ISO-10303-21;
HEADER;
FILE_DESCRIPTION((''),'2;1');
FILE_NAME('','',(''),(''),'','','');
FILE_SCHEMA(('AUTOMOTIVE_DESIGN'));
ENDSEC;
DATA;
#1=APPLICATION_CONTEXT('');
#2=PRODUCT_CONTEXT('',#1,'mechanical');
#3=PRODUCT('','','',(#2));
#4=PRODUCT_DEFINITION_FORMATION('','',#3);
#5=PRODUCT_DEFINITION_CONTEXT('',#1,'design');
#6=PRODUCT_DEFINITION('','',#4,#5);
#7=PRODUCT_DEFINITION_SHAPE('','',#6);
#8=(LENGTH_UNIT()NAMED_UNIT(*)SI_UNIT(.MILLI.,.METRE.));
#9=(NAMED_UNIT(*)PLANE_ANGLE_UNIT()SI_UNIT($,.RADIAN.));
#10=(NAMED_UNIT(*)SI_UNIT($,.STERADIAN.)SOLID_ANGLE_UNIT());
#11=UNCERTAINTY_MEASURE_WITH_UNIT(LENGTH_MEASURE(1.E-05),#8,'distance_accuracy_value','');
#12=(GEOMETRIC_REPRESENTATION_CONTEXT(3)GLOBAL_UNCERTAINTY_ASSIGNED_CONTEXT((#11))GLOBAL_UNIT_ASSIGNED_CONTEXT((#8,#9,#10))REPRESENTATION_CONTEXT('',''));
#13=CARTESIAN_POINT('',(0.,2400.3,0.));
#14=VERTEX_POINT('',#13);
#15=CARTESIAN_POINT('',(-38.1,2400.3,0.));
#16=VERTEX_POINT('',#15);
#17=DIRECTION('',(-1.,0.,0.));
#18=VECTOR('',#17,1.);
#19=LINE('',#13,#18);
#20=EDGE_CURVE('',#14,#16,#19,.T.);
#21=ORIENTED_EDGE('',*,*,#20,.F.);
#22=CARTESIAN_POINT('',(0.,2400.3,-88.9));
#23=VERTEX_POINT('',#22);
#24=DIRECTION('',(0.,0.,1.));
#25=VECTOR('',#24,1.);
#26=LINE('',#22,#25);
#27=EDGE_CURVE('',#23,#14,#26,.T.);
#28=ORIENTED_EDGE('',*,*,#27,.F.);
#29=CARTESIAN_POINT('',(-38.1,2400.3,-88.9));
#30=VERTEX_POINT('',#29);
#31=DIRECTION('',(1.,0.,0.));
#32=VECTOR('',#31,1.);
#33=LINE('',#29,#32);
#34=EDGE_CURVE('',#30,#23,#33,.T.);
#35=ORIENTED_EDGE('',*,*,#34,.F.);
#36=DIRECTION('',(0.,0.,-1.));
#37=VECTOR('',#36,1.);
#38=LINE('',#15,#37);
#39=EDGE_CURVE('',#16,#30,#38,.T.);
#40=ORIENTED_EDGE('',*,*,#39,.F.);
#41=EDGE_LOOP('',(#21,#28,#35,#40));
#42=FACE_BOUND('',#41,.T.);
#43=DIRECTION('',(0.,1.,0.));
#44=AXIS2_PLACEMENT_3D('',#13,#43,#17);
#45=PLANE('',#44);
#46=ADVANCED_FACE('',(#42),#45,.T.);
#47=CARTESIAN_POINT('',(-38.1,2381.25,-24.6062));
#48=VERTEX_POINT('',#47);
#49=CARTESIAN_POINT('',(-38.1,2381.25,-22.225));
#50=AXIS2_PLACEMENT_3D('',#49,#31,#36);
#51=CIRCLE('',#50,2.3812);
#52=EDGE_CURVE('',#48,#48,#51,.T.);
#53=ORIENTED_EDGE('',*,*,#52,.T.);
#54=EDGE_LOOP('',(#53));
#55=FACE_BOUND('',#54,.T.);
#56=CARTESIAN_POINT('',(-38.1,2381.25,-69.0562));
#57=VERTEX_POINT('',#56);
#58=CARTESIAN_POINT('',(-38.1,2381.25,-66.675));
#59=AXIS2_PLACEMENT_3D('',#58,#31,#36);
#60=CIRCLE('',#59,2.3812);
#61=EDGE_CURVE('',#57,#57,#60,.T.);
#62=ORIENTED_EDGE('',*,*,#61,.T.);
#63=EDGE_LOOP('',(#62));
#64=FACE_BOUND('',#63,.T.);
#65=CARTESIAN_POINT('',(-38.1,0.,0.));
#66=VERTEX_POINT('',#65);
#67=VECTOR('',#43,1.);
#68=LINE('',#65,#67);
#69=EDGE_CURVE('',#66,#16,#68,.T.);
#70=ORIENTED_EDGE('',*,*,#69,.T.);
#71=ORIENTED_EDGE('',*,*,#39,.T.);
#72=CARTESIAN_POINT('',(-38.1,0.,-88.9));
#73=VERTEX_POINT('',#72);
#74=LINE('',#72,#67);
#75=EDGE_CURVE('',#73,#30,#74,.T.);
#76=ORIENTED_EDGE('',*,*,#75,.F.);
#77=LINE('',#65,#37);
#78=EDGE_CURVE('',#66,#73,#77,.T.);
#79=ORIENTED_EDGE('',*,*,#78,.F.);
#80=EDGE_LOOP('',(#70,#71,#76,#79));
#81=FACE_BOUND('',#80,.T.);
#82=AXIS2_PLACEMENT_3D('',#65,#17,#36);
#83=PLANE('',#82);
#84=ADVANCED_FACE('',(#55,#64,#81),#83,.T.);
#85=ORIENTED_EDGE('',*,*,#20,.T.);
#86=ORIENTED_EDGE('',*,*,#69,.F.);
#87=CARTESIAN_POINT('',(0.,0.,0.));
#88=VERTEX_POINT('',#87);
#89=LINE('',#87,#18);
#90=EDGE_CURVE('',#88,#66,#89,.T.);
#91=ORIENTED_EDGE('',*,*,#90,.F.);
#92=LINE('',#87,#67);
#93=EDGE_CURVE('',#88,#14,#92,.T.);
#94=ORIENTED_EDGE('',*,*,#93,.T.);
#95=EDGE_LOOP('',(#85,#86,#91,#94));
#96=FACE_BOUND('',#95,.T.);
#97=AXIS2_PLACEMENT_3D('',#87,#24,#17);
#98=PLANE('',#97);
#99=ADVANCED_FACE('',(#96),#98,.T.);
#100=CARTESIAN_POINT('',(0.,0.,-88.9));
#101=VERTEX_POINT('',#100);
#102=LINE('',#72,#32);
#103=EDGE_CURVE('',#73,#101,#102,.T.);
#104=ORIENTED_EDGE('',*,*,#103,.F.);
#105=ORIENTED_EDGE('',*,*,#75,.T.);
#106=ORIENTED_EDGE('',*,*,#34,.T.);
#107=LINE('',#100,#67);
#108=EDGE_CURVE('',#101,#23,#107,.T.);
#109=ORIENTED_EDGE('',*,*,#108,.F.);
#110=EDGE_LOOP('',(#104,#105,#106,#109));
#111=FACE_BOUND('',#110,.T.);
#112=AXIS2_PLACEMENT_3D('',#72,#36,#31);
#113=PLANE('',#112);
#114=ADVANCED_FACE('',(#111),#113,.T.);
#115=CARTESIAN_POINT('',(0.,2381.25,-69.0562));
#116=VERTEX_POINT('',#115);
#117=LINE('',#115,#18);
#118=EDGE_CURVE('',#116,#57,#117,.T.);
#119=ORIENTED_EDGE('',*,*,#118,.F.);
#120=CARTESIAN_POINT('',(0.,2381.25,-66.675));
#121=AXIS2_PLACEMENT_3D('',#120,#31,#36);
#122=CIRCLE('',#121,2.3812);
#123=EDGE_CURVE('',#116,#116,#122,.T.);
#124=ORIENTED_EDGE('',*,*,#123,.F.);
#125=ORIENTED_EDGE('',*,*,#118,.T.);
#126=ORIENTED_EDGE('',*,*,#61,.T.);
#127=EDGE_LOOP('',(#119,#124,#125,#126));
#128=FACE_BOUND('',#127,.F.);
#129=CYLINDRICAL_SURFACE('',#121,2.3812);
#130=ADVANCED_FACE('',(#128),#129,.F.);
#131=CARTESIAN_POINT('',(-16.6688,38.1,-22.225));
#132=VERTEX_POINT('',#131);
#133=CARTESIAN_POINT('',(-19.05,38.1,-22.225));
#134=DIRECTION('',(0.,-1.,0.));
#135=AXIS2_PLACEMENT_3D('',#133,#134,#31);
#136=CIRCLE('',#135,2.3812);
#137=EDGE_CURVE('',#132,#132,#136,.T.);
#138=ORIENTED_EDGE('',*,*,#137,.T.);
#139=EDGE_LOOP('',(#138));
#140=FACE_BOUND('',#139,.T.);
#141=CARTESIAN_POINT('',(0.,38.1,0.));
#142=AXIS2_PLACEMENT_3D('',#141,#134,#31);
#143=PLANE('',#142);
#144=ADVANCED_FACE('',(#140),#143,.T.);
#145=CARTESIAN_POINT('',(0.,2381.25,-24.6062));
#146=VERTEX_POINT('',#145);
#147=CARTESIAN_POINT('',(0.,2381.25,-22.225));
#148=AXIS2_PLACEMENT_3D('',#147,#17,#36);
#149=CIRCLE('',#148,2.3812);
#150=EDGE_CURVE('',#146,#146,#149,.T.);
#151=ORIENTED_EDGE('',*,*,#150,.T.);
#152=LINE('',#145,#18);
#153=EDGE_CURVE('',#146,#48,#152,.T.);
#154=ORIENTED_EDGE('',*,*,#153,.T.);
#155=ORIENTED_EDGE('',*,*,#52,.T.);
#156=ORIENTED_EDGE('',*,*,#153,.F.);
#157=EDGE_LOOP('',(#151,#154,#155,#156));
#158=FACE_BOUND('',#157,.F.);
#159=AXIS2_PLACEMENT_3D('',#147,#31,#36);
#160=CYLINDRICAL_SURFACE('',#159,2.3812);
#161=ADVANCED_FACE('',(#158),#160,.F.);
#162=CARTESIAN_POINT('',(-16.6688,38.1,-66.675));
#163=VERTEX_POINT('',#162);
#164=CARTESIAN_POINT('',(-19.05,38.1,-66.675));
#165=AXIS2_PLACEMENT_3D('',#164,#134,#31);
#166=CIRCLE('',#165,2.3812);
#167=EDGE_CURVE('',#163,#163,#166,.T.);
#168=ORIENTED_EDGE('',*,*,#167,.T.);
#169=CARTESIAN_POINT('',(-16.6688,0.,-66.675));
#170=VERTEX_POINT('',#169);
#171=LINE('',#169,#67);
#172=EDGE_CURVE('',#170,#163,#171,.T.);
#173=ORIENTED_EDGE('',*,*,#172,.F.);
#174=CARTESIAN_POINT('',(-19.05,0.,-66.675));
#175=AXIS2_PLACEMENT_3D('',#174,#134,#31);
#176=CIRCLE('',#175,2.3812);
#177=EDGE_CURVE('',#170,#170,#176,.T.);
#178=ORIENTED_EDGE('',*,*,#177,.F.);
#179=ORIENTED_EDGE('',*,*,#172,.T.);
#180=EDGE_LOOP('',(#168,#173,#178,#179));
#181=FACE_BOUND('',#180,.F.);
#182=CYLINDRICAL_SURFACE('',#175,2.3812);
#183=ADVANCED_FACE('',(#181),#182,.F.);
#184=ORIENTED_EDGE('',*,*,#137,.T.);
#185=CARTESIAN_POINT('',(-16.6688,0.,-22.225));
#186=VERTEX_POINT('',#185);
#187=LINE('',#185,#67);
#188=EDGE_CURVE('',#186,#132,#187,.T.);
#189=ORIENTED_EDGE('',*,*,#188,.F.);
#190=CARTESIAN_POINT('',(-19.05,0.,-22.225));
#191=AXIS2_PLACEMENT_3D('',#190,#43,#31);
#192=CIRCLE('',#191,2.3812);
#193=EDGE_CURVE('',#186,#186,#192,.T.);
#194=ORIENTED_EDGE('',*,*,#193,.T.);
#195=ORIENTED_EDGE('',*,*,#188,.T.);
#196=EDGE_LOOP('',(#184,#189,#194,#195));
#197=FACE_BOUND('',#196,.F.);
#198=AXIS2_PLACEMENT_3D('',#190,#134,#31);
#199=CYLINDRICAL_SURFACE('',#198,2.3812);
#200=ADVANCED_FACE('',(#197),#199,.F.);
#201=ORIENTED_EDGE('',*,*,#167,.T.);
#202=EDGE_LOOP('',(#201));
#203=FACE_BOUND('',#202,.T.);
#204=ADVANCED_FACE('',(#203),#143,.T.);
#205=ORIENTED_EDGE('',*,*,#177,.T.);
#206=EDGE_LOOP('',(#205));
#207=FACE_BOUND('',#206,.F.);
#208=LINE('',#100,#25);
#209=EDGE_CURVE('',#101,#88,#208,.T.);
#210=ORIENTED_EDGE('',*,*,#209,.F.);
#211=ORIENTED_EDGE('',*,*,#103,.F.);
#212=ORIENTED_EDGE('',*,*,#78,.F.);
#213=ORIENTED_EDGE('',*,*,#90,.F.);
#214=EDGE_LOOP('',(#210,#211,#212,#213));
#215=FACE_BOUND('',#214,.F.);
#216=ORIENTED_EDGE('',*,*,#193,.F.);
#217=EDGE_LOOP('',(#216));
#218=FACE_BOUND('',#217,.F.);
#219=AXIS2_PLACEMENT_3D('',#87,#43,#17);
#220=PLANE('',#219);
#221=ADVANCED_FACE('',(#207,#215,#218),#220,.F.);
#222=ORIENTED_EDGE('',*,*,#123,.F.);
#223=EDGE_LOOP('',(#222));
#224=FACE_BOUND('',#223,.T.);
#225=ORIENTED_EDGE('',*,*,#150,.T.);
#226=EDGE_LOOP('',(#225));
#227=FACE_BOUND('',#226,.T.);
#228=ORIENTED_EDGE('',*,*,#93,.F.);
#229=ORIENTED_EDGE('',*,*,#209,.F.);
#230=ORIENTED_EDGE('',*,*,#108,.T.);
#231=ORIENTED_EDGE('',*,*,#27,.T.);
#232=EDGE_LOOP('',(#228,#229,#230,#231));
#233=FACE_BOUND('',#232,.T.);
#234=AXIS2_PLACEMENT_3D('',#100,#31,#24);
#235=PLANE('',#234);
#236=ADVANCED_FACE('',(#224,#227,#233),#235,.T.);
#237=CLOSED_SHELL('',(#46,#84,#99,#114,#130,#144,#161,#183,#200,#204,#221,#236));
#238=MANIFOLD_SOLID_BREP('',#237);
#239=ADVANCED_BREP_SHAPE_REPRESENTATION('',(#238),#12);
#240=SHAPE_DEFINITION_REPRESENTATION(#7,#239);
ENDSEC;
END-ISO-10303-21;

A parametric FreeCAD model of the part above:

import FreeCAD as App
import Part
import Sketcher
from FreeCAD import Vector
Q = App.Units.Quantity


def add_polygon(sketch, points):
    """Adds a closed chain of lines whose ends are joined by coincident constraints."""
    first, n = sketch.GeometryCount, len(points)
    for a, b in zip(points, points[1:] + points[:1]):
        sketch.addGeometry(Part.LineSegment(App.Vector(*a, 0), App.Vector(*b, 0)), False)
    for i in range(n):
        sketch.addConstraint(Sketcher.Constraint("Coincident", first + i, 2, first + (i + 1) % n, 1))

doc = App.newDocument("Part")
body = doc.addObject("PartDesign::Body", "Body")

sketch1 = body.newObject("Sketcher::SketchObject", "Sketch")
sketch1.AttachmentSupport = (doc.getObject("XZ_Plane"), [""])
sketch1.MapMode = "FlatFace"
add_polygon(sketch1, [(-38, 0), (0, 0), (0, -89), (-38, -89)])
sketch1.addConstraint(Sketcher.Constraint("Horizontal", 0))
sketch1.addConstraint(Sketcher.Constraint("Vertical", 1))
sketch1.addConstraint(Sketcher.Constraint("Horizontal", 2))
sketch1.addConstraint(Sketcher.Constraint("Vertical", 3))
sketch1.addConstraint(Sketcher.Constraint("Coincident", 0, 2, -1, 1))
sketch1.addConstraint(Sketcher.Constraint("DistanceX", 0, 1, 0, 2, Q("1.5 in")))
sketch1.addConstraint(Sketcher.Constraint("DistanceY", 1, 2, 1, 1, Q("3.5 in")))
pad1 = body.newObject("PartDesign::Pad", "Pad")
pad1.Profile = sketch1
pad1.Length = Q("94.5 in")
pad1.Reversed = True

sketch2 = body.newObject("Sketcher::SketchObject", "Sketch001")
sketch2.AttachmentSupport = (doc.getObject("XZ_Plane"), [""])
sketch2.MapMode = "FlatFace"
sketch2.addGeometry(Part.Circle(Vector(-19.1, -22.2, 0), Vector(0, 0, 1), 2.4), False)
sketch2.addGeometry(Part.Circle(Vector(-19.1, -66.7, 0), Vector(0, 0, 1), 2.4), False)
sketch2.addConstraint(Sketcher.Constraint("Equal", 0, 1))
sketch2.addConstraint(Sketcher.Constraint("Vertical", 0, 3, 1, 3))
sketch2.addConstraint(Sketcher.Constraint("Diameter", 0, Q("0.1875 in")))
sketch2.addConstraint(Sketcher.Constraint("DistanceX", 0, 3, -1, 1, Q("0.75 in")))
sketch2.addConstraint(Sketcher.Constraint("DistanceY", 1, 3, 0, 3, Q("1.75 in")))
sketch2.addConstraint(Sketcher.Constraint("DistanceY", 0, 3, -1, 1, Q("0.875 in")))
pocket1 = body.newObject("PartDesign::Pocket", "Pocket")
pocket1.Profile = sketch2
pocket1.Length = Q("1.5 in")

sketch3 = body.newObject("Sketcher::SketchObject", "Sketch002")
sketch3.AttachmentSupport = (doc.getObject("YZ_Plane"), [""])
sketch3.MapMode = "FlatFace"
sketch3.addGeometry(Part.Circle(Vector(2381.2, -22.2, 0), Vector(0, 0, 1), 2.4), False)
sketch3.addGeometry(Part.Circle(Vector(2381.2, -66.7, 0), Vector(0, 0, 1), 2.4), False)
sketch3.addConstraint(Sketcher.Constraint("Equal", 0, 1))
sketch3.addConstraint(Sketcher.Constraint("Vertical", 0, 3, 1, 3))
sketch3.addConstraint(Sketcher.Constraint("Diameter", 0, Q("0.1875 in")))
sketch3.addConstraint(Sketcher.Constraint("DistanceX", -1, 1, 0, 3, Q("93.75 in")))
sketch3.addConstraint(Sketcher.Constraint("DistanceY", 1, 3, 0, 3, Q("1.75 in")))
sketch3.addConstraint(Sketcher.Constraint("DistanceY", 0, 3, -1, 1, Q("0.875 in")))
pocket2 = body.newObject("PartDesign::Pocket", "Pocket001")
pocket2.Profile = sketch3
pocket2.Length = Q("1.5 in")

doc.recompute()
